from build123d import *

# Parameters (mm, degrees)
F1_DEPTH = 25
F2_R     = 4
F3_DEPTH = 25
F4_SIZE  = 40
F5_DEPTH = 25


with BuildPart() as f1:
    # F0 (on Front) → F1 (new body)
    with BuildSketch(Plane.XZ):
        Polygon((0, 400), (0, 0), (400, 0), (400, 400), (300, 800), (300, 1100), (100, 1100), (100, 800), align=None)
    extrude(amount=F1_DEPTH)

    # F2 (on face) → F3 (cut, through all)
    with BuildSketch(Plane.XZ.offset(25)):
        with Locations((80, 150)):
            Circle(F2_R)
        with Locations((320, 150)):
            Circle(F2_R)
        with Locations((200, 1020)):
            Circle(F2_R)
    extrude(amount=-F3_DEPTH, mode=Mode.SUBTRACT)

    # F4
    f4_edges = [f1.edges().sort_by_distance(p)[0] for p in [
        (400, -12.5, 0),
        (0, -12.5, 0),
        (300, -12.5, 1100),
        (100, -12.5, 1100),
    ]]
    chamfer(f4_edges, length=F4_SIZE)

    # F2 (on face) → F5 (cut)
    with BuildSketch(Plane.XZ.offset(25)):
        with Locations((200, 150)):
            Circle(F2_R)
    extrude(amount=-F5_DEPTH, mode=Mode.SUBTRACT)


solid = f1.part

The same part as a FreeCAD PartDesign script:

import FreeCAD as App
import Part
import Sketcher
from FreeCAD import Vector
Q = App.Units.Quantity


def edges_at(feature, points):
    """Names of the edges that pass closest to the given points."""
    edges = feature.Shape.Edges
    near = lambda p: min(range(len(edges)), key=lambda i: edges[i].distToShape(Part.Vertex(*p))[0])
    return sorted({f"Edge{near(p) + 1}" for p in points})


def add_polygon(sketch, points):
    """Adds a closed chain of lines whose ends are joined by coincident constraints."""
    first, n = sketch.GeometryCount, len(points)
    for a, b in zip(points, points[1:] + points[:1]):
        sketch.addGeometry(Part.LineSegment(App.Vector(*a, 0), App.Vector(*b, 0)), False)
    for i in range(n):
        sketch.addConstraint(Sketcher.Constraint("Coincident", first + i, 2, first + (i + 1) % n, 1))

doc = App.newDocument("Part")
body = doc.addObject("PartDesign::Body", "Body")

# Sketch on XZ plane
sketch1 = body.newObject("Sketcher::SketchObject", "Sketch")
sketch1.AttachmentSupport = (doc.getObject("XZ_Plane"), [""])
sketch1.MapMode = "FlatFace"
add_polygon(sketch1, [(0, 400), (0, 0), (400, 0), (400, 400), (300, 800), (300, 1100), (100, 1100), (100, 800)])  # lines 0-7
sketch1.addConstraint(Sketcher.Constraint("Vertical", 0))
sketch1.addConstraint(Sketcher.Constraint("Horizontal", 1))
sketch1.addConstraint(Sketcher.Constraint("Vertical", 2))
sketch1.addConstraint(Sketcher.Constraint("Vertical", 4))
sketch1.addConstraint(Sketcher.Constraint("Horizontal", 5))
sketch1.addConstraint(Sketcher.Constraint("Vertical", 6))
sketch1.addConstraint(Sketcher.Constraint("Coincident", 0, 2, -1, 1))
sketch1.addConstraint(Sketcher.Constraint("Horizontal", 3, 2, 6, 2))
sketch1.addConstraint(Sketcher.Constraint("Horizontal", 2, 2, 7, 2))
sketch1.addConstraint(Sketcher.Constraint("Equal", 1, 0))
sketch1.addConstraint(Sketcher.Constraint("Equal", 3, 7))
sketch1.addConstraint(Sketcher.Constraint("DistanceX", 1, 1, 1, 2, Q("400 mm")))
sketch1.addConstraint(Sketcher.Constraint("DistanceX", 5, 2, 5, 1, Q("200 mm")))
sketch1.addConstraint(Sketcher.Constraint("DistanceY", 4, 1, 4, 2, Q("300 mm")))
sketch1.addConstraint(Sketcher.Constraint("DistanceY", -1, 1, 3, 2, Q("800 mm")))
pad1 = body.newObject("PartDesign::Pad", "Pad")
pad1.Profile = sketch1
pad1.Length = 25

# Sketch on XZ plane
sketch2 = body.newObject("Sketcher::SketchObject", "Sketch001")
sketch2.AttachmentSupport = (doc.getObject("XZ_Plane"), [""])
sketch2.MapMode = "FlatFace"
sketch2.AttachmentOffset = App.Placement(Vector(0, 0, 25), App.Rotation())
sketch2.addGeometry(Part.Circle(Vector(80, 150, 0), Vector(0, 0, 1), 4), False)
sketch2.addGeometry(Part.Circle(Vector(320, 150, 0), Vector(0, 0, 1), 4), False)
sketch2.addGeometry(Part.Circle(Vector(200, 1020, 0), Vector(0, 0, 1), 4), False)
sketch2.addConstraint(Sketcher.Constraint("Equal", 0, 1))
sketch2.addConstraint(Sketcher.Constraint("Equal", 1, 2))
sketch2.addConstraint(Sketcher.Constraint("Horizontal", 0, 3, 1, 3))
sketch2.addConstraint(Sketcher.Constraint("Diameter", 0, Q("8 mm")))
sketch2.addConstraint(Sketcher.Constraint("DistanceX", -1, 1, 0, 3, Q("80 mm")))
sketch2.addConstraint(Sketcher.Constraint("DistanceY", -1, 1, 0, 3, Q("150 mm")))
sketch2.addConstraint(Sketcher.Constraint("DistanceX", -1, 1, 1, 3, Q("320 mm")))
sketch2.addConstraint(Sketcher.Constraint("DistanceX", -1, 1, 2, 3, Q("200 mm")))
sketch2.addConstraint(Sketcher.Constraint("DistanceY", -1, 1, 2, 3, Q("1020 mm")))
pocket1 = body.newObject("PartDesign::Pocket", "Pocket")
pocket1.Profile = sketch2
pocket1.Type = "ThroughAll"
doc.recompute()

chamfer = body.newObject("PartDesign::Chamfer", "Chamfer")
chamfer.Base = (pocket1, edges_at(pocket1, [
    (400, -12.5, 0),
    (0, -12.5, 0),
    (300, -12.5, 1100),
    (100, -12.5, 1100),
]))
chamfer.Size = 40

# Sketch on XZ plane
sketch3 = body.newObject("Sketcher::SketchObject", "Sketch002")
sketch3.AttachmentSupport = (doc.getObject("XZ_Plane"), [""])
sketch3.MapMode = "FlatFace"
sketch3.AttachmentOffset = App.Placement(Vector(0, 0, 25), App.Rotation())
sketch3.addGeometry(Part.Circle(Vector(200, 150, 0), Vector(0, 0, 1), 4), False)
sketch3.addConstraint(Sketcher.Constraint("Diameter", 0, Q("8 mm")))
sketch3.addConstraint(Sketcher.Constraint("DistanceX", -1, 1, 0, 3, Q("200 mm")))
sketch3.addConstraint(Sketcher.Constraint("DistanceY", -1, 1, 0, 3, Q("150 mm")))
pocket2 = body.newObject("PartDesign::Pocket", "Pocket001")
pocket2.Profile = sketch3
pocket2.Length = 25

doc.recompute()
